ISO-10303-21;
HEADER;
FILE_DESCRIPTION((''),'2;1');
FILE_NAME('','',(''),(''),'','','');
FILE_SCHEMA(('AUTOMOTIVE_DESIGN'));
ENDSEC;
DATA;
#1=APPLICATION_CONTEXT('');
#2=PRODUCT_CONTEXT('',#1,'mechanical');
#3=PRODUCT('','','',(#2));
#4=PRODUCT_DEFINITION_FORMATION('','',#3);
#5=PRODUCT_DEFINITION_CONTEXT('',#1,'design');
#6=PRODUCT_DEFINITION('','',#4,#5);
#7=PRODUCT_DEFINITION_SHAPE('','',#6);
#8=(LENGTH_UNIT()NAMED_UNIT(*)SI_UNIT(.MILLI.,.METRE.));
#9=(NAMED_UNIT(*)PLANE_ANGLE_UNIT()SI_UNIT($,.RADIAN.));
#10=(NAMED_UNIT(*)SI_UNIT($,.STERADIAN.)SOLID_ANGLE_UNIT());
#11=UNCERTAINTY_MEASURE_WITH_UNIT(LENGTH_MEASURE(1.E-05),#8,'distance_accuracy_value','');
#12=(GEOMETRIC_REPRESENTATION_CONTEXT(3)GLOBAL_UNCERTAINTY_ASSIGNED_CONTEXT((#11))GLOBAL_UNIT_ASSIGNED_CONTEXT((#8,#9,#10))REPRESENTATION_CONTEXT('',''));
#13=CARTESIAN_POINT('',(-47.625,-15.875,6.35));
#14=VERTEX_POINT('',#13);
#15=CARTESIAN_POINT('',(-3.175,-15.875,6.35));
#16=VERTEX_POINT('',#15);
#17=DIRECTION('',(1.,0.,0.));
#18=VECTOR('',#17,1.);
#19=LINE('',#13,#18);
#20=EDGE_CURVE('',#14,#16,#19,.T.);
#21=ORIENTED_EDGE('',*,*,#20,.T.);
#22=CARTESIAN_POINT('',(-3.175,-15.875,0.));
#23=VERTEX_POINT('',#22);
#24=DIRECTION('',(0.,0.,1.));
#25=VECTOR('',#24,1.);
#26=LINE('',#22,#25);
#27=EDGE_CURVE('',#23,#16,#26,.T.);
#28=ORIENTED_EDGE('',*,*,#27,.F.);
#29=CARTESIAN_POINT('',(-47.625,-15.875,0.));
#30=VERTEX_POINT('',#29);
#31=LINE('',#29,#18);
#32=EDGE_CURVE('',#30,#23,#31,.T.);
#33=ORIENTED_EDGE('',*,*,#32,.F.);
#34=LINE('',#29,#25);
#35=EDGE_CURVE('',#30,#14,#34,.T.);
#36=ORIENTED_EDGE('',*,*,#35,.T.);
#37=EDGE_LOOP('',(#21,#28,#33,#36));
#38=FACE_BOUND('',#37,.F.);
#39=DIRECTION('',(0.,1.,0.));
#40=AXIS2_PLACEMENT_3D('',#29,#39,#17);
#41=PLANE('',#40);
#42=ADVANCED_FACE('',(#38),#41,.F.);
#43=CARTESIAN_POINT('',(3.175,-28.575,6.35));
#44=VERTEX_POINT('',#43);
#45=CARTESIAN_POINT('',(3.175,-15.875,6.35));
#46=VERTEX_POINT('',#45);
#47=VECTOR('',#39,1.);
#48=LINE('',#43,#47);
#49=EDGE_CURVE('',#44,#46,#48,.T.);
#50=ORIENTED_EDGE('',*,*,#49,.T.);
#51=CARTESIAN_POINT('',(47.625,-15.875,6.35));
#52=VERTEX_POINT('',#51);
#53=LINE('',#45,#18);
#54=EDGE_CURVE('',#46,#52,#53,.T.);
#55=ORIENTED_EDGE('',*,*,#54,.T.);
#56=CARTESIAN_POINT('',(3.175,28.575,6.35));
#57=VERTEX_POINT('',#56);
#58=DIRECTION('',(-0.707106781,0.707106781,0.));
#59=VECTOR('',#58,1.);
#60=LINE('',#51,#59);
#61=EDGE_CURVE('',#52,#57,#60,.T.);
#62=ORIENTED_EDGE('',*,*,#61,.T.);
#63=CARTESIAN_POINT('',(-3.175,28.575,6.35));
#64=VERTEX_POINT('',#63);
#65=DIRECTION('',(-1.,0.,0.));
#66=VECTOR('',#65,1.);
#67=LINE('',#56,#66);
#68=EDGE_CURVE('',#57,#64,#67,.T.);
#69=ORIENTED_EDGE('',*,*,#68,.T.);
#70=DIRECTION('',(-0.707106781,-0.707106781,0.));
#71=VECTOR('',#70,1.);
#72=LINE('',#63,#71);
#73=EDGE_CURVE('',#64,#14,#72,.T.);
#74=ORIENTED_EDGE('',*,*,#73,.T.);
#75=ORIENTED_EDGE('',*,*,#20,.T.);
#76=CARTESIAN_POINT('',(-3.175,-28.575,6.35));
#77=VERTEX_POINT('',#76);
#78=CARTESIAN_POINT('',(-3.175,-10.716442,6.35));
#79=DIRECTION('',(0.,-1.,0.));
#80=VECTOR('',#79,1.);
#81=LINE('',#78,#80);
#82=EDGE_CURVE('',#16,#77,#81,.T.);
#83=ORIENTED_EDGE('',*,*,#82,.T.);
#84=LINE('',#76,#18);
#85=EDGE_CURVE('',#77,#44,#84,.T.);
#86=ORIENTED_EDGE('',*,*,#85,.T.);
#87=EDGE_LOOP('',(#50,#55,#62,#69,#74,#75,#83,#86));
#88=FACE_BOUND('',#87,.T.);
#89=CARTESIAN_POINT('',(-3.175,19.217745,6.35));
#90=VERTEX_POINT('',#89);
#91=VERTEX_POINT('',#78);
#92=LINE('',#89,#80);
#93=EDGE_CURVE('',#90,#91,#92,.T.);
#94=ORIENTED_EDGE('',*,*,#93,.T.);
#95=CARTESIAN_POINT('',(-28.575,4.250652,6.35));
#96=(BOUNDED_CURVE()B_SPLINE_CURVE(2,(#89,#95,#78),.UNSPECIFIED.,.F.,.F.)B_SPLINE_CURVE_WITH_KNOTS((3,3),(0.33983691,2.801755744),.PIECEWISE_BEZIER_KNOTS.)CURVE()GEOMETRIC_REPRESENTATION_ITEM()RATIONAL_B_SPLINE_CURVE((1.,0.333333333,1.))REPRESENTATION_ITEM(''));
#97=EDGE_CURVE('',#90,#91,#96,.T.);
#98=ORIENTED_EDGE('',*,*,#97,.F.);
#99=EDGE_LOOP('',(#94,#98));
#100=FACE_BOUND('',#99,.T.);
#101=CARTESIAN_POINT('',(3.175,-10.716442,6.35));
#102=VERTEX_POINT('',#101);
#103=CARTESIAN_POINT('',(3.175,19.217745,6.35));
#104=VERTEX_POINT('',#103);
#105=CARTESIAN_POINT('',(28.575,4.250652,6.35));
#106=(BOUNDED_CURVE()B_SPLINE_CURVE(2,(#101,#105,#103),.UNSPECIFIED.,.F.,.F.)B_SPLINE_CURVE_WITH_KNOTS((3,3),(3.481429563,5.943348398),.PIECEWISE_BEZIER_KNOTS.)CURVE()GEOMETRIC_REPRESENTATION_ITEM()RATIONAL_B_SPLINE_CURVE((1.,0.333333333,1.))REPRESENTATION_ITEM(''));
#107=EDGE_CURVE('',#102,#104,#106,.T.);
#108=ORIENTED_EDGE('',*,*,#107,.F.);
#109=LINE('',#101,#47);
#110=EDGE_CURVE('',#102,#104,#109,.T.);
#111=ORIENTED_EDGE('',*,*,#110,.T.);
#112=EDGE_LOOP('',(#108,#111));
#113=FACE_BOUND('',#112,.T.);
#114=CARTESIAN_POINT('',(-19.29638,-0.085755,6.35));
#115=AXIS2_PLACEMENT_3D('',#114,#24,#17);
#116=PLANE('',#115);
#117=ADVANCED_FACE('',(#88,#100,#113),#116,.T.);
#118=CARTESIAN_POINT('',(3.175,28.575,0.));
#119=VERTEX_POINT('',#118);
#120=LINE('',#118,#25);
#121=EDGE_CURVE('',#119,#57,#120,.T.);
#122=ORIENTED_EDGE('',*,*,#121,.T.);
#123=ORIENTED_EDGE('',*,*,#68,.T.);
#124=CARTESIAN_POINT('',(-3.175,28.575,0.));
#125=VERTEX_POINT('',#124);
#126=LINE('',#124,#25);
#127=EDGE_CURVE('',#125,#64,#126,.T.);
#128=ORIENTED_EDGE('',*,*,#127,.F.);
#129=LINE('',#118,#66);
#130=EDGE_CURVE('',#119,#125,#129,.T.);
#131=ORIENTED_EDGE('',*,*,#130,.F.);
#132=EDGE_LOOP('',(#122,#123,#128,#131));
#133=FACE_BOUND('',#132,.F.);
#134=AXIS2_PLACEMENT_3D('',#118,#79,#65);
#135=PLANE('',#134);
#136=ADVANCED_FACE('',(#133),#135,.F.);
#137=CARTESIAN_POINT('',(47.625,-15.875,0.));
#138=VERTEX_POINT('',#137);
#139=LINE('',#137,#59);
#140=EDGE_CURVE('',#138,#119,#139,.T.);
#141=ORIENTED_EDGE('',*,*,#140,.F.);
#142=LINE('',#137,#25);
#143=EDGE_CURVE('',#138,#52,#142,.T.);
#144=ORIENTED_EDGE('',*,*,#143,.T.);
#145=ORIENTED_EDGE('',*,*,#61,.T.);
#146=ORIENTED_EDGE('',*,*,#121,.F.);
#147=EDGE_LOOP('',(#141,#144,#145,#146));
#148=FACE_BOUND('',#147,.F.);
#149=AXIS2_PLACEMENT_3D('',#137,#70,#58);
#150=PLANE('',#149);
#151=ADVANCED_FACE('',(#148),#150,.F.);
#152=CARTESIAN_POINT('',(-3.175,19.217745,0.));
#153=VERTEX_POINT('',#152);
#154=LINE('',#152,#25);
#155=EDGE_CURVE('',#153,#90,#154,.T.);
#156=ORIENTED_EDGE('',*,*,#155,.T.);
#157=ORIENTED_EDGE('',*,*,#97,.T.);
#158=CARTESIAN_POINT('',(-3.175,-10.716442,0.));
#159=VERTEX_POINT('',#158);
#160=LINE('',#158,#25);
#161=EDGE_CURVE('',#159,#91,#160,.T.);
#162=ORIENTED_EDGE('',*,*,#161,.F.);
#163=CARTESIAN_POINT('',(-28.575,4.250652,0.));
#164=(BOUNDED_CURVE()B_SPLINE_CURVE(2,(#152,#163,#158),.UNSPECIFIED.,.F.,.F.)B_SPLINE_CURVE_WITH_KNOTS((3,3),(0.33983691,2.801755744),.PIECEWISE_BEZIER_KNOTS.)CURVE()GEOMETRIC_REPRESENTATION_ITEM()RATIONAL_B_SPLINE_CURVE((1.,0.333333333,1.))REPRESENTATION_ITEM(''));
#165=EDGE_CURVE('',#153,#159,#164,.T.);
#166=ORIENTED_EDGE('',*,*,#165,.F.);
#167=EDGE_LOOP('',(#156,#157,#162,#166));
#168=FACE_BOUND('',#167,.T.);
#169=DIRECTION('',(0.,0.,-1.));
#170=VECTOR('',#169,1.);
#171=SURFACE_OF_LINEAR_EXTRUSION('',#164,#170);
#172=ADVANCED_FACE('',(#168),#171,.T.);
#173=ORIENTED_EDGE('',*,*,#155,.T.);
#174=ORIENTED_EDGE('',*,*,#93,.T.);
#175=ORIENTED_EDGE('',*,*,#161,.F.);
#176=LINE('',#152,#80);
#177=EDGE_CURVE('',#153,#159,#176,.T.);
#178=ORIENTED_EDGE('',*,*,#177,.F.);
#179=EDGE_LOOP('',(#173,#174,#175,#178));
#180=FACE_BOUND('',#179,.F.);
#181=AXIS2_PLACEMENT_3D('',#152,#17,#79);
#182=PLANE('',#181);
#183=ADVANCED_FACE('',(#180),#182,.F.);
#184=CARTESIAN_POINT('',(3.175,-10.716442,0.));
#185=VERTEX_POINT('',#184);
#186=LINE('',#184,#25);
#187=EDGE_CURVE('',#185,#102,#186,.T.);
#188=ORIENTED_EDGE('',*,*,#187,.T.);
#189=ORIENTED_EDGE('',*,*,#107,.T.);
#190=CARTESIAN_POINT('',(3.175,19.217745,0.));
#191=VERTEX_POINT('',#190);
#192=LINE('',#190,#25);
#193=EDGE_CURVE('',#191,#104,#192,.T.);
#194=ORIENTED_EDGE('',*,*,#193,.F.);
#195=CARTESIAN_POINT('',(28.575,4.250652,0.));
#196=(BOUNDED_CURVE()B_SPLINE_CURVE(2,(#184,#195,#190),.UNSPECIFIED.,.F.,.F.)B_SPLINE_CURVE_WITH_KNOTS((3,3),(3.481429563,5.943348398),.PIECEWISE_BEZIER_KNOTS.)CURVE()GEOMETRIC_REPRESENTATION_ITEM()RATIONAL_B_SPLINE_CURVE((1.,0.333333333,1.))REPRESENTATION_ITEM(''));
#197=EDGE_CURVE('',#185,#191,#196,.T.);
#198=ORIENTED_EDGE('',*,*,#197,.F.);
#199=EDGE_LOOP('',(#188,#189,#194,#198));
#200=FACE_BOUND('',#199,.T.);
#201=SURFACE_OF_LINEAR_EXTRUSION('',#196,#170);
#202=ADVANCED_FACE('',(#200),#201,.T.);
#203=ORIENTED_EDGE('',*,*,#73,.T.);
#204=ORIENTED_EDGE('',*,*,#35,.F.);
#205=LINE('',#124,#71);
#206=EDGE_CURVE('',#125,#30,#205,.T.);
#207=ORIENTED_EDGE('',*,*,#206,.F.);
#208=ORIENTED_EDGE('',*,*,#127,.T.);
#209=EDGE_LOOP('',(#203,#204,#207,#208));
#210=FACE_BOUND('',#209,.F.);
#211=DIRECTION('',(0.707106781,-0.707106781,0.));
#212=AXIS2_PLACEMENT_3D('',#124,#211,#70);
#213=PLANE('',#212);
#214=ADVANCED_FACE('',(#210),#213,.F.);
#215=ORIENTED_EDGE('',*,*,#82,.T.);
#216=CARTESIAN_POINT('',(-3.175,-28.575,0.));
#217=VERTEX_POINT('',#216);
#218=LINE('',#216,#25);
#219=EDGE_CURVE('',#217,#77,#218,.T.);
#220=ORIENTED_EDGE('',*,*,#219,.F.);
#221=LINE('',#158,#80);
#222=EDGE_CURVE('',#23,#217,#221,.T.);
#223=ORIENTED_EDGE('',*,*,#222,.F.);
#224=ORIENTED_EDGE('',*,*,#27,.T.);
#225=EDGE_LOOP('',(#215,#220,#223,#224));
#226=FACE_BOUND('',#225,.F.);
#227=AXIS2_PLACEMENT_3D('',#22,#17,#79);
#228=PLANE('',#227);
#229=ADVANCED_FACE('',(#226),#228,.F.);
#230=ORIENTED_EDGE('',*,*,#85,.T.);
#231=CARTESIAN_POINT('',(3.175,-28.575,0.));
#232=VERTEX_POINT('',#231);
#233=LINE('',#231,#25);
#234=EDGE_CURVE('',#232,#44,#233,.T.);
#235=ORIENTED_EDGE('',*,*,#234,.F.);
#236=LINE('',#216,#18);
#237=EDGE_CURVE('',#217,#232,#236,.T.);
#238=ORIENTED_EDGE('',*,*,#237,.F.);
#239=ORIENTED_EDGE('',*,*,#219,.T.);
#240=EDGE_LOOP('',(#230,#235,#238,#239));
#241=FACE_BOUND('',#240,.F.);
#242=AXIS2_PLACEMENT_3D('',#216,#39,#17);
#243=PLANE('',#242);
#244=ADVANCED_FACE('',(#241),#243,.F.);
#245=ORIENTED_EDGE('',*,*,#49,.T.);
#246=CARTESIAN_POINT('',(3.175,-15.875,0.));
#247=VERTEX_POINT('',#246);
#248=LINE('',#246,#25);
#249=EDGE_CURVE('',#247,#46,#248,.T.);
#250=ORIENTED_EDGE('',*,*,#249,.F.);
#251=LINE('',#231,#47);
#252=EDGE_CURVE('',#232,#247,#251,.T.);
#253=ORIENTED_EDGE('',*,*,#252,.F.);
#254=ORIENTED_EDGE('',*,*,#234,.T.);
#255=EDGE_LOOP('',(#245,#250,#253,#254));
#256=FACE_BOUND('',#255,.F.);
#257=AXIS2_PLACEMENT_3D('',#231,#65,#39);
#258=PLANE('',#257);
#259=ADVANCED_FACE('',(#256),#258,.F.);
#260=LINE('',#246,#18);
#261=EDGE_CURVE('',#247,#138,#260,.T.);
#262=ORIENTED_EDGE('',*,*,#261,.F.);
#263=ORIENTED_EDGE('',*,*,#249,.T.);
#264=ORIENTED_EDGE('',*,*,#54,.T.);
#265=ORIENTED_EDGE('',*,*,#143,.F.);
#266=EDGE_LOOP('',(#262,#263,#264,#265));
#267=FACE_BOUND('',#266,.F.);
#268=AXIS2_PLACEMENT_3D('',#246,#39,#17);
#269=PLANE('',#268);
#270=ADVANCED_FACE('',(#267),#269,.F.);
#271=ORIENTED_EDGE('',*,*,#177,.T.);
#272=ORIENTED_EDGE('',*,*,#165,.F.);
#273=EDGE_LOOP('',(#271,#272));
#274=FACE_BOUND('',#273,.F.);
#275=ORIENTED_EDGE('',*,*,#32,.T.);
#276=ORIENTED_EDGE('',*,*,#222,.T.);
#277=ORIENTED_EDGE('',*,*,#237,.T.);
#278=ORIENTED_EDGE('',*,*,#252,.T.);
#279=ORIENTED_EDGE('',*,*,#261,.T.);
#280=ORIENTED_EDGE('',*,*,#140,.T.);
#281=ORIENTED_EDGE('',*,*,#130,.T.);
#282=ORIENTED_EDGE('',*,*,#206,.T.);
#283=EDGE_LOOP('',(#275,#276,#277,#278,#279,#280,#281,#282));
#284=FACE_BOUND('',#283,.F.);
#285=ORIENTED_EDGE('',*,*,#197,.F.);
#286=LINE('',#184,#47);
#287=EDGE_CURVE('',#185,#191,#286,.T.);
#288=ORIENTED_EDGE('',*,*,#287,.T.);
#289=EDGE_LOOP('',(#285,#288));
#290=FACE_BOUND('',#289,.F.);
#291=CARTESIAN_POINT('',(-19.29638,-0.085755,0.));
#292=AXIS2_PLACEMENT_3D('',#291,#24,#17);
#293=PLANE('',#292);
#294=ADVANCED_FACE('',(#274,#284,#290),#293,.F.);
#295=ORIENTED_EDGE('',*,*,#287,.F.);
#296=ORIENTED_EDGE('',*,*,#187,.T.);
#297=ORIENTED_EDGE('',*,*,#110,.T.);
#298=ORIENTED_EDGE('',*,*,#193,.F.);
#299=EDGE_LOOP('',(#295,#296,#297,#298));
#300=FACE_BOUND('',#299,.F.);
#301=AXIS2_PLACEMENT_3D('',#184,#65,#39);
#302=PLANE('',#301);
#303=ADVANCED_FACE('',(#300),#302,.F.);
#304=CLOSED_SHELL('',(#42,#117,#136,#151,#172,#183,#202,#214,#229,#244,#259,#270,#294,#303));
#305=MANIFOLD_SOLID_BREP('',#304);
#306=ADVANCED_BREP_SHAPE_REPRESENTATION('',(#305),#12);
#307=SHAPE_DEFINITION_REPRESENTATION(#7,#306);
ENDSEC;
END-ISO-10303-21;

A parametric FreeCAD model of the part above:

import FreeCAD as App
import Part
import Sketcher

V = App.Vector
Q = App.Units.Quantity

doc = App.newDocument("Part")
body = doc.addObject("PartDesign::Body", "Body")

sketch1 = doc.addObject("Sketcher::SketchObject", "Sketch")
body.addObject(sketch1)
sketch1.AttachmentSupport = (doc.XY_Plane, [""])
sketch1.MapMode = "FlatFace"
sketch1.addGeometry([
    Part.LineSegment(V(-47.625, -15.875, 0), V(-3.175, -15.875, 0)),
    Part.LineSegment(V(-3.175, -15.875, 0), V(-3.175, -28.575, 0)),
    Part.LineSegment(V(-3.175, -28.575, 0), V(3.175, -28.575, 0)),
    Part.LineSegment(V(3.175, -28.575, 0), V(3.175, -15.875, 0)),
    Part.LineSegment(V(3.175, -15.875, 0), V(47.625, -15.875, 0)),
    Part.LineSegment(V(47.625, -15.875, 0), V(3.175, 28.575, 0)),
    Part.LineSegment(V(3.175, 28.575, 0), V(-3.175, 28.575, 0)),
    Part.LineSegment(V(-3.175, 28.575, 0), V(-47.625, -15.875, 0)),
    Part.BSplineCurve([V(-3.175, 19.217745, 0), V(-28.575, 4.250652, 0), V(-3.175, -10.716442, 0)], [3, 3], [0.33983691, 2.801755744], False, 2, [1, 0.333333333, 1], False),
    Part.LineSegment(V(-3.175, 19.217745, 0), V(-3.175, -10.716442, 0)),
    Part.BSplineCurve([V(3.175, -10.716442, 0), V(28.575, 4.250652, 0), V(3.175, 19.217745, 0)], [3, 3], [3.481429563, 5.943348398], False, 2, [1, 0.333333333, 1], False),
    Part.LineSegment(V(3.175, -10.716442, 0), V(3.175, 19.217745, 0)),
], False)
sketch1.addConstraint([
    Sketcher.Constraint("Block", 8),
    Sketcher.Constraint("Block", 10),
    Sketcher.Constraint("Coincident", 0, 2, 1, 1),
    Sketcher.Constraint("Coincident", 1, 2, 2, 1),
    Sketcher.Constraint("Coincident", 2, 2, 3, 1),
    Sketcher.Constraint("Coincident", 3, 2, 4, 1),
    Sketcher.Constraint("Coincident", 4, 2, 5, 1),
    Sketcher.Constraint("Coincident", 5, 2, 6, 1),
    Sketcher.Constraint("Coincident", 6, 2, 7, 1),
    Sketcher.Constraint("Coincident", 7, 2, 0, 1),
    Sketcher.Constraint("Coincident", 8, 1, 9, 1),
    Sketcher.Constraint("Coincident", 9, 2, 8, 2),
    Sketcher.Constraint("Coincident", 10, 1, 11, 1),
    Sketcher.Constraint("Coincident", 11, 2, 10, 2),
    Sketcher.Constraint("Horizontal", 0),
    Sketcher.Constraint("Vertical", 1),
    Sketcher.Constraint("Horizontal", 2),
    Sketcher.Constraint("Vertical", 3),
    Sketcher.Constraint("Horizontal", 4),
    Sketcher.Constraint("Horizontal", 6),
    Sketcher.Constraint("Symmetric", 1, 2, 5, 2, -1, 1),
    Sketcher.Constraint("Symmetric", 0, 2, 3, 2, -2),
    Sketcher.Constraint("Perpendicular", 5, 7),
    Sketcher.Constraint("Vertical", 1, 2, 6, 2),
    Sketcher.Constraint("Vertical", 6, 2, 9, 2),
    Sketcher.Constraint("Equal", 0, 4),
    Sketcher.Constraint("DistanceY", 1, 2, 1, 1, Q("0.5 in")),
    Sketcher.Constraint("DistanceX", 0, 2, 4, 2, Q("2 in")),
])
pad1 = doc.addObject("PartDesign::Pad", "Pad")
body.addObject(pad1)
pad1.Profile = sketch1
pad1.Length = Q("0.25 in")

doc.recompute()
